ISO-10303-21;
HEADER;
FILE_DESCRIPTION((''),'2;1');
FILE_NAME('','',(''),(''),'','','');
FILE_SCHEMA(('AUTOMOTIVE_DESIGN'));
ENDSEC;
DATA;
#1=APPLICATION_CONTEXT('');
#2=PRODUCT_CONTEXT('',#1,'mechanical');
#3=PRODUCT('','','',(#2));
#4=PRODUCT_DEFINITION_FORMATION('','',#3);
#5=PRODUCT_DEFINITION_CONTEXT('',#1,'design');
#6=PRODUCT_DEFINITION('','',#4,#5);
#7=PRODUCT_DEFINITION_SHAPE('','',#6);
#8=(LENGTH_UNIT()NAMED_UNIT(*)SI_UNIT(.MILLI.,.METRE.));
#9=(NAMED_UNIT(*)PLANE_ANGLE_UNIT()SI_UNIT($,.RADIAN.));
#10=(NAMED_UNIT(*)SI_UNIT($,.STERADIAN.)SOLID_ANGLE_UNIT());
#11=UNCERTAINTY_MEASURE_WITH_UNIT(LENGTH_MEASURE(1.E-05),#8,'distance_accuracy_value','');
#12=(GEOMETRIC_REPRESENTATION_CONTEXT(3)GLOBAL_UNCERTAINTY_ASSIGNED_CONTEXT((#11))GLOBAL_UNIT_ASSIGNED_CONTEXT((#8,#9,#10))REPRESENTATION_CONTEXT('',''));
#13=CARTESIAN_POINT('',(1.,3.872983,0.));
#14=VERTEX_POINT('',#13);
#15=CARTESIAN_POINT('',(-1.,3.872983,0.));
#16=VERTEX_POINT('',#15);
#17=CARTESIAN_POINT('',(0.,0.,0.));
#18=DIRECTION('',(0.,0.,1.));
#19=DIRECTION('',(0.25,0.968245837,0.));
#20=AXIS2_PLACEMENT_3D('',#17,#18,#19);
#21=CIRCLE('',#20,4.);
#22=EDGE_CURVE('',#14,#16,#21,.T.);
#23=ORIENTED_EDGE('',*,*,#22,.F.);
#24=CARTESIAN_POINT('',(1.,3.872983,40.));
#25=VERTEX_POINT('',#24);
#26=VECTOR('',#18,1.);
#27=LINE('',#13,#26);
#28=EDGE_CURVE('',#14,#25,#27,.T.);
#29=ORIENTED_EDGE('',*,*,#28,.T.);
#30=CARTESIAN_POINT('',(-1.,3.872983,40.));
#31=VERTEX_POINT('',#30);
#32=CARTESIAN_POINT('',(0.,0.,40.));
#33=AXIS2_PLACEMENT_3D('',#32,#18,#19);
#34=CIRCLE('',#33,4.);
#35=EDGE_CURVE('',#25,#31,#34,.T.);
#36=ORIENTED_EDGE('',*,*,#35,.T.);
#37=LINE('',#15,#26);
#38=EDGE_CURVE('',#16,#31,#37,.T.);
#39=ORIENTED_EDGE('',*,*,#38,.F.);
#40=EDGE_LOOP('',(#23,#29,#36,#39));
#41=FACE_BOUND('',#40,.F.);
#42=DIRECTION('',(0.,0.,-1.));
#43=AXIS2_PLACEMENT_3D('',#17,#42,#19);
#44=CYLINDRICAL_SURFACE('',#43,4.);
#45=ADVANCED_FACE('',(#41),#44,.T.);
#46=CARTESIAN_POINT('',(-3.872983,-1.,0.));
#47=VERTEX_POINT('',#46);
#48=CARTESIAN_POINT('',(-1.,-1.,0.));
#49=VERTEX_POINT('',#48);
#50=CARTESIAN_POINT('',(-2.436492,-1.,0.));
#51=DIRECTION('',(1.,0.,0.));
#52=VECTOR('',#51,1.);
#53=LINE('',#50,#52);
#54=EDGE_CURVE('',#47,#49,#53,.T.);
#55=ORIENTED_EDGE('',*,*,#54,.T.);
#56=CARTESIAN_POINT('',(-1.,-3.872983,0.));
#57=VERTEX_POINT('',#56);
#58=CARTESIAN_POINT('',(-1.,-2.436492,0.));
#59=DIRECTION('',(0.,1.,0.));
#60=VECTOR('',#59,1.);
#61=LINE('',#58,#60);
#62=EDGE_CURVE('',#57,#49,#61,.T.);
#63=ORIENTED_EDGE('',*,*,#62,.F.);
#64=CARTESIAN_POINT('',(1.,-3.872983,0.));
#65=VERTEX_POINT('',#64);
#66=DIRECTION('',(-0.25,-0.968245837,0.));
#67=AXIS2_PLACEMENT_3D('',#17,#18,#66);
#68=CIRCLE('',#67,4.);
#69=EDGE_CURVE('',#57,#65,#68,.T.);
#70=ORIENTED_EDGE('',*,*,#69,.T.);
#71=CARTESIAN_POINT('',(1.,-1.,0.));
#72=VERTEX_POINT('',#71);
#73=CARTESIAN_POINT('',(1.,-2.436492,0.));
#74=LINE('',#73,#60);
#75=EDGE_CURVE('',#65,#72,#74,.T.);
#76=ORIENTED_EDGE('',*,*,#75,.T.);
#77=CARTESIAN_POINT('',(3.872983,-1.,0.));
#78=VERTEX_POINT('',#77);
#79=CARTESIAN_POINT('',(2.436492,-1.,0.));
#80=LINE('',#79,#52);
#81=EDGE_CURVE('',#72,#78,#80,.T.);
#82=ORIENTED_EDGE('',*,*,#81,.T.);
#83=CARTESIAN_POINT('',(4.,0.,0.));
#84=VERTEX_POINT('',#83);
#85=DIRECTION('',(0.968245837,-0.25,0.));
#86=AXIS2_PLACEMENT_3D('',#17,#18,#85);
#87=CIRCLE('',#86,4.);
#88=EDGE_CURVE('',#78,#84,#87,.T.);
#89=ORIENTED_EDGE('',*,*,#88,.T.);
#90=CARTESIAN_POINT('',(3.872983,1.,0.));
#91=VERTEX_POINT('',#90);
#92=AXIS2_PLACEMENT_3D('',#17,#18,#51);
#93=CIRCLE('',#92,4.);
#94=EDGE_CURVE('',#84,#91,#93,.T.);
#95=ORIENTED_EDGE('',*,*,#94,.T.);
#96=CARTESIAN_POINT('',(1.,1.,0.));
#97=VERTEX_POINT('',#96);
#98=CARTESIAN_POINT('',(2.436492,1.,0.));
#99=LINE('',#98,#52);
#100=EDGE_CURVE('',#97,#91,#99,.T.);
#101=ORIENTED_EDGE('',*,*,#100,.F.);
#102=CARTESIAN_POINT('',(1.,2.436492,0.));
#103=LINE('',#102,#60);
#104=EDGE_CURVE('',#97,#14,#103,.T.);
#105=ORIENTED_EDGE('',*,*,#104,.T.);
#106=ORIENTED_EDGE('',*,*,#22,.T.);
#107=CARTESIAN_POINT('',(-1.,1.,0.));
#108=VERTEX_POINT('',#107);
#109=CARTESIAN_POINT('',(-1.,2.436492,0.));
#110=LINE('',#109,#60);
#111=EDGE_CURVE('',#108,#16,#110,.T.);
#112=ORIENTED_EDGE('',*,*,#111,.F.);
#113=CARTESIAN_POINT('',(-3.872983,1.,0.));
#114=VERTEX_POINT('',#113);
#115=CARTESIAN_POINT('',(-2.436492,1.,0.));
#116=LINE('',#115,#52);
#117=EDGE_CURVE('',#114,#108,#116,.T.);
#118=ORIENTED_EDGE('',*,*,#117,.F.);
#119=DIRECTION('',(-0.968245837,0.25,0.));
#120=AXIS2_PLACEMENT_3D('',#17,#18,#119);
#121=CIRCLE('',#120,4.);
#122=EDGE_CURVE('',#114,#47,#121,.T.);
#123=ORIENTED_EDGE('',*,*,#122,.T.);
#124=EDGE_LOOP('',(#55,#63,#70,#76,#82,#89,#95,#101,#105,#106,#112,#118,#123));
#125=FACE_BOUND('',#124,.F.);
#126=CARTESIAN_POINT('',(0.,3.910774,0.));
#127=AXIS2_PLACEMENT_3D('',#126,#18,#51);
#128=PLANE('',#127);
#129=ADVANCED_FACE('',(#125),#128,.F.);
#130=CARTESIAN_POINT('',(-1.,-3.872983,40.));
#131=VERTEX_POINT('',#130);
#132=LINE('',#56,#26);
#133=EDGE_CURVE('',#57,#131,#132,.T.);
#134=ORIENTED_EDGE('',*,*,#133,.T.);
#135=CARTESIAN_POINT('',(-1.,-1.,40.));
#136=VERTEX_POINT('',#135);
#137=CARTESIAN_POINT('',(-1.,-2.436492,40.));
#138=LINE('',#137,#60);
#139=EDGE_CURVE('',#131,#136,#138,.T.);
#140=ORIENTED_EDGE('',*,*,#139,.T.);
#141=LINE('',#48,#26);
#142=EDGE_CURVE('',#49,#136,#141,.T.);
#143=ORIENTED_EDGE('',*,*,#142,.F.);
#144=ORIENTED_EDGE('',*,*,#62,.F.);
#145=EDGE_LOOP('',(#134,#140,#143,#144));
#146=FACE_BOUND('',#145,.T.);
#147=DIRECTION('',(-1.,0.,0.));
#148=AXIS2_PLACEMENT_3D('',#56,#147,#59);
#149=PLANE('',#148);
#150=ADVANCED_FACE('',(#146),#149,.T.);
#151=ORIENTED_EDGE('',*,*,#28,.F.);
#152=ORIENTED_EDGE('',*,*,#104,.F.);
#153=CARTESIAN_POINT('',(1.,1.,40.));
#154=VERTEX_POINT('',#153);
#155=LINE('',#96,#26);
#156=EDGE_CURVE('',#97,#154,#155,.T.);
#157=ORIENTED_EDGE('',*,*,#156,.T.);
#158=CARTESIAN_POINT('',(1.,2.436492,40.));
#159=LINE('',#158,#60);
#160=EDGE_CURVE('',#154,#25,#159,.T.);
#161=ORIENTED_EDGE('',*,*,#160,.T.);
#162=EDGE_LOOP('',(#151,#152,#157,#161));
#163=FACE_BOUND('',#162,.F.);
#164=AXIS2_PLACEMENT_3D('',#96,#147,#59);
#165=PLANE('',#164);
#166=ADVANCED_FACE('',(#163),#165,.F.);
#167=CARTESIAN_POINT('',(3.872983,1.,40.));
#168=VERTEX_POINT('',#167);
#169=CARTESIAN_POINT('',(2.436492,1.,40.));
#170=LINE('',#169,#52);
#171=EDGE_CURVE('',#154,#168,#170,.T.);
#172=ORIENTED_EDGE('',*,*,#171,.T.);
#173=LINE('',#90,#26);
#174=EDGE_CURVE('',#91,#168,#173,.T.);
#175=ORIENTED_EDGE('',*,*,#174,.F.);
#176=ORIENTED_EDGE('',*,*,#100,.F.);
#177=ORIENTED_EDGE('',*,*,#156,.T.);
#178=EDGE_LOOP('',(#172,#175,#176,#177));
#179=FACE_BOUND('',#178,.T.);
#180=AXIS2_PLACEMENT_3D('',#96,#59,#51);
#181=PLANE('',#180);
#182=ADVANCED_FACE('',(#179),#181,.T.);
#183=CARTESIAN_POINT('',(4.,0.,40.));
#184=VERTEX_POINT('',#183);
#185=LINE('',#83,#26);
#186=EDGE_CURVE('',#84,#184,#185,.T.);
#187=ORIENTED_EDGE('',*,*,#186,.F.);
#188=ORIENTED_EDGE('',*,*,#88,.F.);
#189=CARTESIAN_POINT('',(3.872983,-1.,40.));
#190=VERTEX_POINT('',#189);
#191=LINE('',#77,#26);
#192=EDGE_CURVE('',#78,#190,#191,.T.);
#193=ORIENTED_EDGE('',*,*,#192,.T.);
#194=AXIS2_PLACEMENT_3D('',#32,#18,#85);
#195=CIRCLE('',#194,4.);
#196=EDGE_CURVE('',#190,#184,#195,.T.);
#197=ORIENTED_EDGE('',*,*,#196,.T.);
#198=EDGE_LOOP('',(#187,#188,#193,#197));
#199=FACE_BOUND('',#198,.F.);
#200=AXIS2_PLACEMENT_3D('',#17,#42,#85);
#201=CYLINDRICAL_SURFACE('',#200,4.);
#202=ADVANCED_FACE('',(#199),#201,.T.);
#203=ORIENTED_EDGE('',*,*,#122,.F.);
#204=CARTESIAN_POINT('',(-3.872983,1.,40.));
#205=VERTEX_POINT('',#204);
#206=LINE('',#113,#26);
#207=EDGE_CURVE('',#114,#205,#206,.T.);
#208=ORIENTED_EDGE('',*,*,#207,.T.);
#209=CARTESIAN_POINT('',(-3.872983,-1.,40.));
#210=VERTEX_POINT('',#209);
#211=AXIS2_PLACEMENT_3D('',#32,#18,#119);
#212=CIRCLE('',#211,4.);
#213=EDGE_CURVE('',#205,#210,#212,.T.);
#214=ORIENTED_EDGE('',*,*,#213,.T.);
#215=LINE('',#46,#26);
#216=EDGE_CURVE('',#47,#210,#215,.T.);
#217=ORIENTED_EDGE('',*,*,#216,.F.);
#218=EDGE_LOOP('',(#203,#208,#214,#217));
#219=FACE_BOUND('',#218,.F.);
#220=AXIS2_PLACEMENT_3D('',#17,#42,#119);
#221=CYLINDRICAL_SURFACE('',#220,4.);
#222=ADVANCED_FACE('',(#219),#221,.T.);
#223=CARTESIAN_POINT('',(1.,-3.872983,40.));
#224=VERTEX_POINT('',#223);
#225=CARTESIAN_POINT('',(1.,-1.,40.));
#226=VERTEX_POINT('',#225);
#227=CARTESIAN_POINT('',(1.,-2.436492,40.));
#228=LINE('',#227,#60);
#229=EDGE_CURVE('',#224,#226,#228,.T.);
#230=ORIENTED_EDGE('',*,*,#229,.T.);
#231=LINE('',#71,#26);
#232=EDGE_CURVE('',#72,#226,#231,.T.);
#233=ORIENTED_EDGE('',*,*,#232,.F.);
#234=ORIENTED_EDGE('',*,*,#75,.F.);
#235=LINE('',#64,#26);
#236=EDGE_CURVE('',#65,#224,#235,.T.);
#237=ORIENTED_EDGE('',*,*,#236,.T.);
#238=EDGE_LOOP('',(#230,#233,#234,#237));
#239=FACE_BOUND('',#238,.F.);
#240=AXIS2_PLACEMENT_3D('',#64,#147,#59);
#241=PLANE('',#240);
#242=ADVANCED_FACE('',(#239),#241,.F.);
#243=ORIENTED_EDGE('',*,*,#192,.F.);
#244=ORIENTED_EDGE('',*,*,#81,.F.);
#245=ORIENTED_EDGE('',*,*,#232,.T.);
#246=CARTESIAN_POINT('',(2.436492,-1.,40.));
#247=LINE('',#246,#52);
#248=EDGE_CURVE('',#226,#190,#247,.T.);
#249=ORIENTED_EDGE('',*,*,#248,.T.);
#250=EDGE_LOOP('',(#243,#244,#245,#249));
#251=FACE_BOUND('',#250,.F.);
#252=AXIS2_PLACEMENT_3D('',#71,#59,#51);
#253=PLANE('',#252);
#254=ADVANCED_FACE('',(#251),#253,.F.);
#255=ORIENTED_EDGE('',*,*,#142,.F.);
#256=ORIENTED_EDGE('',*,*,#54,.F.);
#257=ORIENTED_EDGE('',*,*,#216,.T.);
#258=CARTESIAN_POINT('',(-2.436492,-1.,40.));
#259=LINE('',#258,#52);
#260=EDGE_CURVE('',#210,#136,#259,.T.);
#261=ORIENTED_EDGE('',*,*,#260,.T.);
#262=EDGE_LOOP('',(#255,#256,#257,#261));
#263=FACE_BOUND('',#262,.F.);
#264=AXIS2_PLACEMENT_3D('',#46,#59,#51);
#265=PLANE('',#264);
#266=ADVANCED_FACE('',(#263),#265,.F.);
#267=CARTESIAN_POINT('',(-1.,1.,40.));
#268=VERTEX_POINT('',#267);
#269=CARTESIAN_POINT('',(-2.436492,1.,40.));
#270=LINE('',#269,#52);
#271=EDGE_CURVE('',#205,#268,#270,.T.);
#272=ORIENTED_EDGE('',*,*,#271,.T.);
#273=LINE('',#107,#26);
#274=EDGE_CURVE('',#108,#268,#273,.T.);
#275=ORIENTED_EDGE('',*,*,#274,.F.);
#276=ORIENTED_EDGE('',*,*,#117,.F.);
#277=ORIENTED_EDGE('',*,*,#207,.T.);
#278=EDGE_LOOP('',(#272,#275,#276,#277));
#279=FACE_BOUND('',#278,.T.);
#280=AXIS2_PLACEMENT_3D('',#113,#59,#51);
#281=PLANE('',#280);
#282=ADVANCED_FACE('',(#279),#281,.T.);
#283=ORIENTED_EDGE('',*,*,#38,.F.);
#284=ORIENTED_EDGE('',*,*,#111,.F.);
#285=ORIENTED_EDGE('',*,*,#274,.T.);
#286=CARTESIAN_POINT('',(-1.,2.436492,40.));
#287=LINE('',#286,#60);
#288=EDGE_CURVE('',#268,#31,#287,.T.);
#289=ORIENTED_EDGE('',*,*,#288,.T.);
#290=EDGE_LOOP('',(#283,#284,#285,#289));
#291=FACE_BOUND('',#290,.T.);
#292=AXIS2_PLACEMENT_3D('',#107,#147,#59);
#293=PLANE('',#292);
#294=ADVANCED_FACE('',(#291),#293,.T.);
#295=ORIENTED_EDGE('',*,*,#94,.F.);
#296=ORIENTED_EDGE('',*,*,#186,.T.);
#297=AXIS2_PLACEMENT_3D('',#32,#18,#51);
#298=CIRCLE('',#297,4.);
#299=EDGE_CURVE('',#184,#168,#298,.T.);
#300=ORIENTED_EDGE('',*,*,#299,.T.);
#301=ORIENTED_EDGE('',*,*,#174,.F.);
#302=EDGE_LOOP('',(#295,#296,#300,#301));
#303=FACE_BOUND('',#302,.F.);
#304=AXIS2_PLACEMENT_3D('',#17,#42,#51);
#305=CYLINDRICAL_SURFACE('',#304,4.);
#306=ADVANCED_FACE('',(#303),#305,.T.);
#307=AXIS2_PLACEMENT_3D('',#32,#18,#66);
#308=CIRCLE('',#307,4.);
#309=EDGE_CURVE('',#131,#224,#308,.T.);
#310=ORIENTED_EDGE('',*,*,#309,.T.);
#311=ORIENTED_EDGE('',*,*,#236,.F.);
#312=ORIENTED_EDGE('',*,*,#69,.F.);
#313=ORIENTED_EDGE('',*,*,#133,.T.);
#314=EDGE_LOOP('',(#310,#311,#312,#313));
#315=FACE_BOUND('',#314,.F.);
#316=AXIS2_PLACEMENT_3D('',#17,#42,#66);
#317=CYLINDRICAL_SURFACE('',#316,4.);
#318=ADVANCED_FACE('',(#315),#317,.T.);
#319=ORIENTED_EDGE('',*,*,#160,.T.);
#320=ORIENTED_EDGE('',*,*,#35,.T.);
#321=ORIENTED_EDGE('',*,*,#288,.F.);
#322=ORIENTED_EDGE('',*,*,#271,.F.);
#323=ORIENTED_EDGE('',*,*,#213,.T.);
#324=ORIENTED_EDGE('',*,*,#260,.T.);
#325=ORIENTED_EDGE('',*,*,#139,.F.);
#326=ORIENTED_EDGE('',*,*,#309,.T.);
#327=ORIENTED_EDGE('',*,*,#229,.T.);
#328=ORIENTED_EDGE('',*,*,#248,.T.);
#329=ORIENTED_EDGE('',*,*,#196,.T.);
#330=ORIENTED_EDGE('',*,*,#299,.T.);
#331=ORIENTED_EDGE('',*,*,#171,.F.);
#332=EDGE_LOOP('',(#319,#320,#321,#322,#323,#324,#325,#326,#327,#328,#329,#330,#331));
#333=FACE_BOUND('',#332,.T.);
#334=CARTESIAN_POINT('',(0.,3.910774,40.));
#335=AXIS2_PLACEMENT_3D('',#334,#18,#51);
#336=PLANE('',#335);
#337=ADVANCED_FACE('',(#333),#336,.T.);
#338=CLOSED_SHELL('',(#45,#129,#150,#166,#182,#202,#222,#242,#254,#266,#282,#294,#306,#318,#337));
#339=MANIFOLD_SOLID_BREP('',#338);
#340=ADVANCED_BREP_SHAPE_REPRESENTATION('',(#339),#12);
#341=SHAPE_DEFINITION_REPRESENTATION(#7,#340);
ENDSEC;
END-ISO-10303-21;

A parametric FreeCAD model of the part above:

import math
import FreeCAD as App
import Part
import Sketcher

doc = App.newDocument("Part")
params = doc.addObject("Spreadsheet::Sheet", "Params")
for row, (alias, value) in enumerate([
    ("sketch1_radius", "4 mm"),
    ("pad1_length", "40 mm"),
], start=1):
    params.set(f"A{row}", alias)
    params.set(f"B{row}", "=" + value)
    params.setAlias(f"B{row}", alias)

body = doc.addObject("PartDesign::Body", "Body")

# Sketch on XY plane
sketch1 = body.newObject("Sketcher::SketchObject", "Sketch")
sketch1.AttachmentSupport = (doc.getObject("XY_Plane"), [""])
sketch1.MapMode = "FlatFace"
sketch1.addGeometry(Part.ArcOfCircle(Part.Circle(App.Vector(0, 0, 0), App.Vector(0, 0, 1), 4), math.radians(76), math.radians(104)), False)
sketch1.addGeometry(Part.LineSegment(App.Vector(-1, 3.9, 0), App.Vector(-1, 1, 0)), False)
sketch1.addGeometry(Part.LineSegment(App.Vector(-1, 1, 0), App.Vector(-3.9, 1, 0)), False)
sketch1.addGeometry(Part.ArcOfCircle(Part.Circle(App.Vector(0, 0, 0), App.Vector(0, 0, 1), 4), math.radians(166), math.radians(194)), False)
sketch1.addGeometry(Part.LineSegment(App.Vector(-3.9, -1, 0), App.Vector(-1, -1, 0)), False)
sketch1.addGeometry(Part.LineSegment(App.Vector(-1, -1, 0), App.Vector(-1, -3.9, 0)), False)
sketch1.addGeometry(Part.ArcOfCircle(Part.Circle(App.Vector(0, 0, 0), App.Vector(0, 0, 1), 4), math.radians(-104), math.radians(-76)), False)
sketch1.addGeometry(Part.LineSegment(App.Vector(1, -3.9, 0), App.Vector(1, -1, 0)), False)
sketch1.addGeometry(Part.LineSegment(App.Vector(1, -1, 0), App.Vector(3.9, -1, 0)), False)
sketch1.addGeometry(Part.ArcOfCircle(Part.Circle(App.Vector(0, 0, 0), App.Vector(0, 0, 1), 4), math.radians(-14.48), math.radians(0)), False)
sketch1.addGeometry(Part.ArcOfCircle(Part.Circle(App.Vector(0, 0, 0), App.Vector(0, 0, 1), 4), math.radians(0), math.radians(14.48)), False)
sketch1.addGeometry(Part.LineSegment(App.Vector(3.9, 1, 0), App.Vector(1, 1, 0)), False)
sketch1.addGeometry(Part.LineSegment(App.Vector(1, 1, 0), App.Vector(1, 3.9, 0)), False)
sketch1.addConstraint(Sketcher.Constraint("Coincident", 0, 2, 1, 1))
sketch1.addConstraint(Sketcher.Constraint("Coincident", 1, 2, 2, 1))
sketch1.addConstraint(Sketcher.Constraint("Coincident", 2, 2, 3, 1))
sketch1.addConstraint(Sketcher.Constraint("Coincident", 3, 2, 4, 1))
sketch1.addConstraint(Sketcher.Constraint("Coincident", 4, 2, 5, 1))
sketch1.addConstraint(Sketcher.Constraint("Coincident", 5, 2, 6, 1))
sketch1.addConstraint(Sketcher.Constraint("Coincident", 6, 2, 7, 1))
sketch1.addConstraint(Sketcher.Constraint("Coincident", 7, 2, 8, 1))
sketch1.addConstraint(Sketcher.Constraint("Coincident", 8, 2, 9, 1))
sketch1.addConstraint(Sketcher.Constraint("Tangent", 9, 2, 10, 1))
sketch1.addConstraint(Sketcher.Constraint("Coincident", 10, 2, 11, 1))
sketch1.addConstraint(Sketcher.Constraint("Coincident", 11, 2, 12, 1))
sketch1.addConstraint(Sketcher.Constraint("Coincident", 12, 2, 0, 1))
sketch1.addConstraint(Sketcher.Constraint("Vertical", 1))
sketch1.addConstraint(Sketcher.Constraint("Horizontal", 2))
sketch1.addConstraint(Sketcher.Constraint("Horizontal", 4))
sketch1.addConstraint(Sketcher.Constraint("Vertical", 5))
sketch1.addConstraint(Sketcher.Constraint("Vertical", 7))
sketch1.addConstraint(Sketcher.Constraint("Horizontal", 8))
sketch1.addConstraint(Sketcher.Constraint("Horizontal", 11))
sketch1.addConstraint(Sketcher.Constraint("Vertical", 12))
sketch1.addConstraint(Sketcher.Constraint("Coincident", 0, 3, -1, 1))
sketch1.addConstraint(Sketcher.Constraint("Coincident", 3, 3, -1, 1))
sketch1.addConstraint(Sketcher.Constraint("Coincident", 6, 3, -1, 1))
sketch1.addConstraint(Sketcher.Constraint("Coincident", 9, 3, -1, 1))
sketch1.addConstraint(Sketcher.Constraint("Equal", 0, 3))
sketch1.addConstraint(Sketcher.Constraint("Equal", 3, 6))
sketch1.addConstraint(Sketcher.Constraint("Equal", 6, 9))
sketch1.addConstraint(Sketcher.Constraint("Equal", 9, 10))
sketch1.addConstraint(Sketcher.Constraint("Symmetric", 1, 2, 7, 2, -1, 1))
sketch1.addConstraint(Sketcher.Constraint("Symmetric", 4, 2, 11, 2, -1, 1))
sketch1.addConstraint(Sketcher.Constraint("Symmetric", 4, 2, 7, 2, -2))
sketch1.addConstraint(Sketcher.Constraint("PointOnObject", 9, 2, -1))
sketch1.addConstraint(Sketcher.Constraint("Equal", 11, 1))
sketch1.addConstraint(Sketcher.Constraint("Radius", 0, 4.0))
sketch1.addConstraint(Sketcher.Constraint("DistanceX", 0, 2, -1, 1, 1.0))
sketch1.setExpression("Constraints[34]", "Params.sketch1_radius")
pad1 = body.newObject("PartDesign::Pad", "Pad")
pad1.Profile = sketch1
pad1.setExpression("Length", "Params.pad1_length")

doc.recompute()
